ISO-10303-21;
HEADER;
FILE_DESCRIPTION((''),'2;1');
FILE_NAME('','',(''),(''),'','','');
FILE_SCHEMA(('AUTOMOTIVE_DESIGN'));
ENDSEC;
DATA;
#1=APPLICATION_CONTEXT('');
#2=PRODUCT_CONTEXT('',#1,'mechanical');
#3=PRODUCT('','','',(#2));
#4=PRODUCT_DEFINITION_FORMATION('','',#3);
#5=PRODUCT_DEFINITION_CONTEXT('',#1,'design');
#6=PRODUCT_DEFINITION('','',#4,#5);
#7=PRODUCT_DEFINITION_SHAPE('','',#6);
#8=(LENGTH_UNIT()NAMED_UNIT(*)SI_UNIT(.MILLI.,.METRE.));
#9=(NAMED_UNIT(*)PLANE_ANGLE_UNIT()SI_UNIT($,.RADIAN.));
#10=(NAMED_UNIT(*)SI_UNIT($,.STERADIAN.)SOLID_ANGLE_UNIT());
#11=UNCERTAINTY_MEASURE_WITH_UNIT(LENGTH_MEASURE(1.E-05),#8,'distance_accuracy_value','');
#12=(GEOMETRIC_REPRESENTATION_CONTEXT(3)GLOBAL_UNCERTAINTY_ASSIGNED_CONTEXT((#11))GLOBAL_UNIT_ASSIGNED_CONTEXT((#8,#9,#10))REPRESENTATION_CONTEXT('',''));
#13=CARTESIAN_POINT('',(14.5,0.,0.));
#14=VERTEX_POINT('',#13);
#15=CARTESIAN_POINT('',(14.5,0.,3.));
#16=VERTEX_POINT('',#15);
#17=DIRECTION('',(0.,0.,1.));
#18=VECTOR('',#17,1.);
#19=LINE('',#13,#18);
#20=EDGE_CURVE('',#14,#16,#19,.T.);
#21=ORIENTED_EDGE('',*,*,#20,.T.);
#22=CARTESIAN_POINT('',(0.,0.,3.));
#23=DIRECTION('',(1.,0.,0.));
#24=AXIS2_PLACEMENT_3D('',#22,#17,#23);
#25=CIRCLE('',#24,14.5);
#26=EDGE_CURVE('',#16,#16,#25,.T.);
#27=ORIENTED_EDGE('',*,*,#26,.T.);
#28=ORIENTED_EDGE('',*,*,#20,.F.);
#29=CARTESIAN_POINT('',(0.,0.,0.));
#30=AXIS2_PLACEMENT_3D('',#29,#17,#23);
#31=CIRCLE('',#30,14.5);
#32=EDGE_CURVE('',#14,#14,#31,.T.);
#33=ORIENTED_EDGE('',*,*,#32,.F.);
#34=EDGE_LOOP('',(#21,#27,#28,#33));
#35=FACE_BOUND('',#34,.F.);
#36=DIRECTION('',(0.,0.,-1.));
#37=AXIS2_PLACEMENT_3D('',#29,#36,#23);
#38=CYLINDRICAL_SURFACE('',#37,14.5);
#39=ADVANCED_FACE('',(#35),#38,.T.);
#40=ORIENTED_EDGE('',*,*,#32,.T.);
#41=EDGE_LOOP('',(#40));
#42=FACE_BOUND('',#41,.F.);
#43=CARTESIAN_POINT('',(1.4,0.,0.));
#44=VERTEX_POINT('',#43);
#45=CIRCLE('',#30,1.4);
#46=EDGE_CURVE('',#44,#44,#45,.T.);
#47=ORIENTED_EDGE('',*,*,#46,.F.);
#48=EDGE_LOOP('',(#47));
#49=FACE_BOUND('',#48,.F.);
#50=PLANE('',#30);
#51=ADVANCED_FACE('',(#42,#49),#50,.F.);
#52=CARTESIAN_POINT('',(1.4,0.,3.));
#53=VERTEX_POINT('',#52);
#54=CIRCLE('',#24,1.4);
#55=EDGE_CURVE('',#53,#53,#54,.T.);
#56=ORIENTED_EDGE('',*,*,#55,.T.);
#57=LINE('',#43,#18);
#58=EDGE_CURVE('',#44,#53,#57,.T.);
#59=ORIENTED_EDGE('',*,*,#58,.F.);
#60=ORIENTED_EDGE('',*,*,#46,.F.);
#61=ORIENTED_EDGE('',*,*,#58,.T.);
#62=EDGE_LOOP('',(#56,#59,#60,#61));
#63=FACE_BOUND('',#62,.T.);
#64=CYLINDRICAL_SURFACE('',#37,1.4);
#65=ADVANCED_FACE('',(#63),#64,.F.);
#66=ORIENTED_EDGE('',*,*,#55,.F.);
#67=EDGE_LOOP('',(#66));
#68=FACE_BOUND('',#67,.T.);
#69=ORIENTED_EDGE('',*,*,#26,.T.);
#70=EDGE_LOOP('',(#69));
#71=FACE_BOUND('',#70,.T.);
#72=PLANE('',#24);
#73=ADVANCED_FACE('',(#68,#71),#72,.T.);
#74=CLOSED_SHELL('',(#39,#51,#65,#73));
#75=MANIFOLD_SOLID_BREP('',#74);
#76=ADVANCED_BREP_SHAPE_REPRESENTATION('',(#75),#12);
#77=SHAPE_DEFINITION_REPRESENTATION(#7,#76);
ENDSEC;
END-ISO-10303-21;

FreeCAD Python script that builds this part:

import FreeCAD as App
import Part
import Sketcher
Q = App.Units.Quantity

doc = App.newDocument("Part")
params = doc.addObject("Spreadsheet::Sheet", "Params")
for row, (alias, value) in enumerate([
    ("sketch1_diameter", "29 mm"),
    ("sketch1_diameter2", "2.8 mm"),
    ("pad1_length", "3 mm"),
], start=1):
    params.set(f"A{row}", alias)
    params.set(f"B{row}", "=" + value)
    params.setAlias(f"B{row}", alias)

body = doc.addObject("PartDesign::Body", "Body")

sketch1 = doc.addObject("Sketcher::SketchObject", "Sketch")
body.addObject(sketch1)
sketch1.AttachmentSupport = (doc.XY_Plane, [""])
sketch1.MapMode = "FlatFace"
sketch1.addGeometry([
    Part.Circle(App.Vector(0, 0, 0), App.Vector(0, 0, 1), 14.5),
    Part.Circle(App.Vector(0, 0, 0), App.Vector(0, 0, 1), 1.4),
], False)
sketch1.addConstraint([
    Sketcher.Constraint("Coincident", 0, 3, -1, 1),
    Sketcher.Constraint("Coincident", 1, 3, -1, 1),
    Sketcher.Constraint("Diameter", 0, Q("29 mm")),
    Sketcher.Constraint("Diameter", 1, Q("2.8 mm")),
])
sketch1.setExpression("Constraints[2]", "Params.sketch1_diameter")
sketch1.setExpression("Constraints[3]", "Params.sketch1_diameter2")
pad1 = doc.addObject("PartDesign::Pad", "Pad")
body.addObject(pad1)
pad1.Profile = sketch1
pad1.setExpression("Length", "Params.pad1_length")

doc.recompute()
